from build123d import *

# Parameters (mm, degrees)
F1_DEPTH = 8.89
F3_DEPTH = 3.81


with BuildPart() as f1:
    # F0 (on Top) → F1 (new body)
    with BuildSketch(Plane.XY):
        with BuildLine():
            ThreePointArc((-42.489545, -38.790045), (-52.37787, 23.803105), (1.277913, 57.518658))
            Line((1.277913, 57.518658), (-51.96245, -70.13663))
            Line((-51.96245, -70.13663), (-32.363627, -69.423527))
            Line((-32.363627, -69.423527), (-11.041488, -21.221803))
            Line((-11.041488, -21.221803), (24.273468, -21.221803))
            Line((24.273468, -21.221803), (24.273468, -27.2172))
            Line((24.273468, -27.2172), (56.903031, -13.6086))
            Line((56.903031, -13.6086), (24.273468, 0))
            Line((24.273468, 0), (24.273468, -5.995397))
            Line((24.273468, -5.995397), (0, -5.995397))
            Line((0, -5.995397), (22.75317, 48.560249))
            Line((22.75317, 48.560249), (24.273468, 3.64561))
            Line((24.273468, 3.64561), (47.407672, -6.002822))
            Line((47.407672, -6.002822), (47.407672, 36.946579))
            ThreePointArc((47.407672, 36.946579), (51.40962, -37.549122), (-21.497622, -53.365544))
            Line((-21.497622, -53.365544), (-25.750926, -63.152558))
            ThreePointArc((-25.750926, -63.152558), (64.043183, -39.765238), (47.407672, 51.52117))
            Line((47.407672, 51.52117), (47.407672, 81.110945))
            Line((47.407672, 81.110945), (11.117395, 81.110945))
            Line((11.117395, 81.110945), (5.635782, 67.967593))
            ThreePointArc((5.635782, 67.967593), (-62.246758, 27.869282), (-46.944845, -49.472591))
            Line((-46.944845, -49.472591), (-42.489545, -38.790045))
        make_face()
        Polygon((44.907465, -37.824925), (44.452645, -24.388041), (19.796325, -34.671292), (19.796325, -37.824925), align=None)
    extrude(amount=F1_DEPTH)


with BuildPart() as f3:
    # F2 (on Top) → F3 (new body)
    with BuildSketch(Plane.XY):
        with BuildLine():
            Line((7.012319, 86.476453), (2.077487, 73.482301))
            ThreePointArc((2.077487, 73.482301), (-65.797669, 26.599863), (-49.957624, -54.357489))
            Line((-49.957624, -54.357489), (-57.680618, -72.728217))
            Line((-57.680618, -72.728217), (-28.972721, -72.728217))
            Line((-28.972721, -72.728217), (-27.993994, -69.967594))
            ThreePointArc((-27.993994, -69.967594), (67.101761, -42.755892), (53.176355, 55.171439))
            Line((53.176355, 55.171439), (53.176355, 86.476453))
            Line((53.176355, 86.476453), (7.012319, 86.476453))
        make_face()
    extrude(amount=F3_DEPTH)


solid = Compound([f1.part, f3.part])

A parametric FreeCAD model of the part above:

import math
import FreeCAD as App
import Part
import Sketcher

V = App.Vector
Q = App.Units.Quantity

doc = App.newDocument("Part")
params = doc.addObject("Spreadsheet::Sheet", "Params")
for row, (alias, value) in enumerate([
    ("pad1_length", "0.35 in"),
    ("pad2_length", "0.15 in"),
], start=1):
    params.set(f"A{row}", alias)
    params.set(f"B{row}", "=" + value)
    params.setAlias(f"B{row}", alias)

body = doc.addObject("PartDesign::Body", "Body")
body.AllowCompound = True

# Sketch on XY plane
sketch1 = doc.addObject("Sketcher::SketchObject", "Sketch")
body.addObject(sketch1)
sketch1.AttachmentSupport = (doc.XY_Plane, [""])
sketch1.MapMode = "FlatFace"
sketch1.addGeometry(Part.ArcOfCircle(Part.Circle(V(0, 0, 0), V(0, 0, 1), 57.532852), math.radians(88.727248), math.radians(222.39394)), False)
sketch1.addGeometry(Part.LineSegment(V(1.277913, 57.518658, 0), V(-51.96245, -70.13663, 0)), False)
sketch1.addGeometry(Part.LineSegment(V(-51.96245, -70.13663, 0), V(-32.363627, -69.423527, 0)), False)
sketch1.addGeometry(Part.LineSegment(V(-32.363627, -69.423527, 0), V(-11.041488, -21.221803, 0)), False)
sketch1.addGeometry(Part.LineSegment(V(-11.041488, -21.221803, 0), V(24.273468, -21.221803, 0)), False)
sketch1.addGeometry(Part.LineSegment(V(24.273468, -21.221803, 0), V(24.273468, -27.2172, 0)), False)
sketch1.addGeometry(Part.LineSegment(V(24.273468, -27.2172, 0), V(56.903031, -13.6086, 0)), False)
sketch1.addGeometry(Part.LineSegment(V(56.903031, -13.6086, 0), V(24.273468, 0, 0)), False)
sketch1.addGeometry(Part.LineSegment(V(24.273468, 0, 0), V(24.273468, -5.995397, 0)), False)
sketch1.addGeometry(Part.LineSegment(V(24.273468, -5.995397, 0), V(0, -5.995397, 0)), False)
sketch1.addGeometry(Part.LineSegment(V(0, -5.995397, 0), V(22.75317, 48.560249, 0)), False)
sketch1.addGeometry(Part.LineSegment(V(22.75317, 48.560249, 0), V(24.273468, 3.64561, 0)), False)
sketch1.addGeometry(Part.LineSegment(V(24.273468, 3.64561, 0), V(47.407672, -6.002822, 0)), False)
sketch1.addGeometry(Part.LineSegment(V(47.407672, -6.002822, 0), V(47.407672, 36.946579, 0)), False)
sketch1.addGeometry(Part.ArcOfCircle(Part.Circle(V(5.669627, -2.650954, 0), V(0, 0, 1), 57.532852), math.radians(-118.177466), math.radians(43.492493)), False)
sketch1.addGeometry(Part.LineSegment(V(-21.497622, -53.365544, 0), V(-25.750926, -63.152558, 0)), False)
sketch1.addGeometry(Part.ArcOfCircle(Part.Circle(V(6.54667, -3.084088, 0), V(0, 0, 1), 68.200849), math.radians(-118.266017), math.radians(53.192567)), False)
sketch1.addGeometry(Part.LineSegment(V(47.407672, 51.52117, 0), V(47.407672, 81.110945, 0)), False)
sketch1.addGeometry(Part.LineSegment(V(47.407672, 81.110945, 0), V(11.117395, 81.110945, 0)), False)
sketch1.addGeometry(Part.LineSegment(V(11.117395, 81.110945, 0), V(5.635782, 67.967593, 0)), False)
sketch1.addGeometry(Part.ArcOfCircle(Part.Circle(V(0, 0, 0), V(0, 0, 1), 68.200848), math.radians(85.259954), math.radians(226.501762)), False)
sketch1.addGeometry(Part.LineSegment(V(-46.944845, -49.472591, 0), V(-42.489545, -38.790045, 0)), False)
sketch1.addGeometry(Part.LineSegment(V(44.907465, -37.824925, 0), V(44.452645, -24.388041, 0)), False)
sketch1.addGeometry(Part.LineSegment(V(44.452645, -24.388041, 0), V(19.796325, -34.671292, 0)), False)
sketch1.addGeometry(Part.LineSegment(V(19.796325, -34.671292, 0), V(19.796325, -37.824925, 0)), False)
sketch1.addGeometry(Part.LineSegment(V(19.796325, -37.824925, 0), V(44.907465, -37.824925, 0)), False)
sketch1.addConstraint(Sketcher.Constraint("Coincident", 0, 1, 1, 1))
sketch1.addConstraint(Sketcher.Constraint("Coincident", 1, 2, 2, 1))
sketch1.addConstraint(Sketcher.Constraint("Coincident", 2, 2, 3, 1))
sketch1.addConstraint(Sketcher.Constraint("Coincident", 3, 2, 4, 1))
sketch1.addConstraint(Sketcher.Constraint("Coincident", 4, 2, 5, 1))
sketch1.addConstraint(Sketcher.Constraint("Coincident", 5, 2, 6, 1))
sketch1.addConstraint(Sketcher.Constraint("Coincident", 6, 2, 7, 1))
sketch1.addConstraint(Sketcher.Constraint("Coincident", 7, 2, 8, 1))
sketch1.addConstraint(Sketcher.Constraint("Coincident", 8, 2, 9, 1))
sketch1.addConstraint(Sketcher.Constraint("Coincident", 9, 2, 10, 1))
sketch1.addConstraint(Sketcher.Constraint("Coincident", 10, 2, 11, 1))
sketch1.addConstraint(Sketcher.Constraint("Coincident", 11, 2, 12, 1))
sketch1.addConstraint(Sketcher.Constraint("Coincident", 12, 2, 13, 1))
sketch1.addConstraint(Sketcher.Constraint("Coincident", 13, 2, 14, 2))
sketch1.addConstraint(Sketcher.Constraint("Coincident", 14, 1, 15, 1))
sketch1.addConstraint(Sketcher.Constraint("Coincident", 15, 2, 16, 1))
sketch1.addConstraint(Sketcher.Constraint("Coincident", 16, 2, 17, 1))
sketch1.addConstraint(Sketcher.Constraint("Coincident", 17, 2, 18, 1))
sketch1.addConstraint(Sketcher.Constraint("Coincident", 18, 2, 19, 1))
sketch1.addConstraint(Sketcher.Constraint("Coincident", 19, 2, 20, 1))
sketch1.addConstraint(Sketcher.Constraint("Coincident", 20, 2, 21, 1))
sketch1.addConstraint(Sketcher.Constraint("Coincident", 21, 2, 0, 2))
sketch1.addConstraint(Sketcher.Constraint("Coincident", 22, 2, 23, 1))
sketch1.addConstraint(Sketcher.Constraint("Coincident", 23, 2, 24, 1))
sketch1.addConstraint(Sketcher.Constraint("Coincident", 24, 2, 25, 1))
sketch1.addConstraint(Sketcher.Constraint("Coincident", 25, 2, 22, 1))
sketch1.addConstraint(Sketcher.Constraint("Horizontal", 4))
sketch1.addConstraint(Sketcher.Constraint("Vertical", 5))
sketch1.addConstraint(Sketcher.Constraint("Vertical", 8))
sketch1.addConstraint(Sketcher.Constraint("Horizontal", 9))
sketch1.addConstraint(Sketcher.Constraint("Vertical", 13))
sketch1.addConstraint(Sketcher.Constraint("Vertical", 17))
sketch1.addConstraint(Sketcher.Constraint("Horizontal", 18))
sketch1.addConstraint(Sketcher.Constraint("Vertical", 24))
sketch1.addConstraint(Sketcher.Constraint("Horizontal", 25))
sketch1.addConstraint(Sketcher.Constraint("Coincident", 0, 3, -1, 1))
sketch1.addConstraint(Sketcher.Constraint("Coincident", 20, 3, -1, 1))
sketch1.addConstraint(Sketcher.Constraint("Equal", 0, 14))
sketch1.addConstraint(Sketcher.Constraint("Equal", 16, 20))
sketch1.addConstraint(Sketcher.Constraint("PointOnObject", 7, 2, -1))
sketch1.addConstraint(Sketcher.Constraint("PointOnObject", 9, 2, -2))
sketch1.addConstraint(Sketcher.Constraint("Perpendicular", 1, 7))
sketch1.addConstraint(Sketcher.Constraint("Perpendicular", 7, 10))
sketch1.addConstraint(Sketcher.Constraint("Perpendicular", 10, 12))
sketch1.addConstraint(Sketcher.Constraint("Perpendicular", 12, 19))
sketch1.addConstraint(Sketcher.Constraint("Parallel", 19, 21))
sketch1.addConstraint(Sketcher.Constraint("Parallel", 11, 22))
sketch1.addConstraint(Sketcher.Constraint("Parallel", 6, 23))
sketch1.addConstraint(Sketcher.Constraint("Vertical", 5, 2, 7, 2))
sketch1.addConstraint(Sketcher.Constraint("Vertical", 8, 2, 11, 2))
sketch1.addConstraint(Sketcher.Constraint("Vertical", 13, 2, 16, 2))
sketch1.addConstraint(Sketcher.Constraint("Equal", 5, 8))
sketch1.addConstraint(Sketcher.Constraint("Equal", 6, 7))
sketch1.addConstraint(Sketcher.Constraint("Radius", 0, 57.532852))
sketch1.addConstraint(Sketcher.Constraint("Radius", 16, 68.200849))
sketch1.addConstraint(Sketcher.Constraint("DistanceY", 13, 1, 13, 2, 42.949401))
sketch1.addConstraint(Sketcher.Constraint("DistanceX", 9, 2, 9, 1, 24.273468))
sketch1.addConstraint(Sketcher.Constraint("DistanceX", 25, 1, 25, 2, 25.11114))
sketch1.addConstraint(Sketcher.Constraint("DistanceY", 5, 2, -1, 1, 27.2172))
sketch1.addConstraint(Sketcher.Constraint("DistanceX", 16, 3, 4, 2, 17.726798))
sketch1.addConstraint(Sketcher.Constraint("DistanceX", 10, 2, 7, 2, 1.520298))
sketch1.addConstraint(Sketcher.Constraint("DistanceY", 16, 3, 11, 2, 6.729698))
sketch1.addConstraint(Sketcher.Constraint("DistanceX", 10, 2, 13, 2, 24.654502))
sketch1.addConstraint(Sketcher.Constraint("DistanceX", 2, 2, 15, 2, 6.612701))
sketch1.addConstraint(Sketcher.Constraint("DistanceY", 14, 1, 21, 2, 14.575499))
sketch1.addConstraint(Sketcher.Constraint("Distance", 1, 138.312721))
sketch1.addConstraint(Sketcher.Constraint("Distance", 2, 19.611792))
sketch1.addConstraint(Sketcher.Constraint("Distance", 10, 59.11028))
sketch1.addConstraint(Sketcher.Constraint("Distance", 11, 44.940362))
sketch1.addConstraint(Sketcher.Constraint("Distance", 15, 10.671281))
sketch1.addConstraint(Sketcher.Constraint("Distance", 19, 14.240638))
sketch1.addConstraint(Sketcher.Constraint("Distance", 21, 11.574389))
sketch1.addConstraint(Sketcher.Constraint("Distance", 22, 13.444579))
sketch1.addConstraint(Sketcher.Constraint("DistanceX", 4, 1, 4, 2, 35.314956))
sketch1.addConstraint(Sketcher.Constraint("DistanceX", 18, 2, 18, 1, 36.290277))
sketch1.addConstraint(Sketcher.Constraint("DistanceY", 5, 2, 5, 1, 5.995397))
sketch1.addConstraint(Sketcher.Constraint("DistanceY", -1, 1, 0, 1, 57.518658))
sketch1.addConstraint(Sketcher.Constraint("DistanceY", 22, 2, -1, 1, 24.388041))
sketch1.addConstraint(Sketcher.Constraint("DistanceY", 2, 2, 16, 3, 66.339439))
sketch1.addConstraint(Sketcher.Constraint("DistanceX", -1, 1, 22, 2, 44.452645))
pad1 = doc.addObject("PartDesign::Pad", "Pad")
body.addObject(pad1)
pad1.Profile = sketch1
pad1.setExpression("Length", "Params.pad1_length")
body2 = doc.addObject("PartDesign::Body", "Body001")

# Sketch on XY plane
sketch2 = doc.addObject("Sketcher::SketchObject", "Sketch001")
body2.addObject(sketch2)
sketch2.AttachmentSupport = (doc.getObject("XY_Plane001"), [""])
sketch2.MapMode = "FlatFace"
sketch2.addGeometry(Part.LineSegment(V(7.012319, 86.476453, 0), V(2.077487, 73.482301, 0)), False)
sketch2.addGeometry(Part.ArcOfCircle(Part.Circle(V(3.93652, -1.784307, 0), V(0, 0, 1), 75.289563), math.radians(91.414879), math.radians(224.289156)), False)
sketch2.addGeometry(Part.LineSegment(V(-49.957624, -54.357489, 0), V(-57.680618, -72.728217, 0)), False)
sketch2.addGeometry(Part.LineSegment(V(-57.680618, -72.728217, 0), V(-28.972721, -72.728217, 0)), False)
sketch2.addGeometry(Part.LineSegment(V(-28.972721, -72.728217, 0), V(-27.993994, -69.967594, 0)), False)
sketch2.addGeometry(Part.ArcOfCircle(Part.Circle(V(3.936521, -1.784307, 0), V(0, 0, 1), 75.289563), math.radians(-115.093887), math.radians(49.155669)), False)
sketch2.addGeometry(Part.LineSegment(V(53.176355, 55.171439, 0), V(53.176355, 86.476453, 0)), False)
sketch2.addGeometry(Part.LineSegment(V(53.176355, 86.476453, 0), V(7.012319, 86.476453, 0)), False)
sketch2.addConstraint(Sketcher.Constraint("Coincident", 0, 2, 1, 1))
sketch2.addConstraint(Sketcher.Constraint("Coincident", 1, 2, 2, 1))
sketch2.addConstraint(Sketcher.Constraint("Coincident", 2, 2, 3, 1))
sketch2.addConstraint(Sketcher.Constraint("Coincident", 3, 2, 4, 1))
sketch2.addConstraint(Sketcher.Constraint("Coincident", 4, 2, 5, 1))
sketch2.addConstraint(Sketcher.Constraint("Coincident", 5, 2, 6, 1))
sketch2.addConstraint(Sketcher.Constraint("Coincident", 6, 2, 7, 1))
sketch2.addConstraint(Sketcher.Constraint("Coincident", 7, 2, 0, 1))
sketch2.addConstraint(Sketcher.Constraint("Horizontal", 3))
sketch2.addConstraint(Sketcher.Constraint("Vertical", 6))
sketch2.addConstraint(Sketcher.Constraint("Horizontal", 7))
sketch2.addConstraint(Sketcher.Constraint("Coincident", 5, 3, 1, 3))
sketch2.addConstraint(Sketcher.Constraint("Equal", 1, 5))
sketch2.addConstraint(Sketcher.Constraint("Radius", 1, 75.289563))
sketch2.addConstraint(Sketcher.Constraint("DistanceY", 5, 2, 0, 2, Q("0.7209001 in")))
sketch2.addConstraint(Sketcher.Constraint("DistanceY", -1, 1, 0, 2, 73.482301))
sketch2.addConstraint(Sketcher.Constraint("DistanceX", 1, 3, 7, 2, 3.075799))
sketch2.addConstraint(Sketcher.Constraint("Distance", 0, 13.89966))
sketch2.addConstraint(Sketcher.Constraint("DistanceX", 3, 1, 3, 2, 28.707897))
sketch2.addConstraint(Sketcher.Constraint("DistanceX", 7, 2, 7, 1, 46.164036))
sketch2.addConstraint(Sketcher.Constraint("DistanceX", -1, 1, 1, 3, 3.93652))
sketch2.addConstraint(Sketcher.Constraint("DistanceY", 1, 2, -1, 1, 54.357489))
sketch2.addConstraint(Sketcher.Constraint("DistanceX", 2, 2, -1, 1, 57.680618))
sketch2.addConstraint(Sketcher.Constraint("DistanceY", 2, 2, 5, 3, 70.94391))
sketch2.addConstraint(Sketcher.Constraint("DistanceX", 1, 2, 4, 2, 21.96363))
pad2 = doc.addObject("PartDesign::Pad", "Pad001")
body2.addObject(pad2)
pad2.Profile = sketch2
pad2.setExpression("Length", "Params.pad2_length")

doc.recompute()
